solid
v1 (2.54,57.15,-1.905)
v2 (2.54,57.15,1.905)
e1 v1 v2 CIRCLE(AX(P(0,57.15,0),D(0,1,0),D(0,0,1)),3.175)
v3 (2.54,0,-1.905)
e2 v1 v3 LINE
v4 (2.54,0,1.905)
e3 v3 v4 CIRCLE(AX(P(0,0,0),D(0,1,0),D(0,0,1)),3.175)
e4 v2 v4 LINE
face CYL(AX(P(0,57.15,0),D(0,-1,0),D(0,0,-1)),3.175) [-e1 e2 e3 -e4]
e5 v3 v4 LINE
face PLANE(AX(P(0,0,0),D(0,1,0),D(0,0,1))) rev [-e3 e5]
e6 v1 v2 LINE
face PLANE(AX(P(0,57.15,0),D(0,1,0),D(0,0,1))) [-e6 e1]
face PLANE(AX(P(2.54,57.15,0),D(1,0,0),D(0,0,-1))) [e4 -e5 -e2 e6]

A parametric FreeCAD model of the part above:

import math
import FreeCAD as App
import Part
import Sketcher
from FreeCAD import Vector
Q = App.Units.Quantity

doc = App.newDocument("Part")
params = doc.addObject("Spreadsheet::Sheet", "Params")
for row, (alias, value) in enumerate([
    ("sketch1_radius", "0.125 in"),
    ("sketch1_height", "0.15 in"),
    ("pad1_length", "2.25 in"),
], start=1):
    params.set(f"A{row}", alias)
    params.set(f"B{row}", "=" + value)
    params.setAlias(f"B{row}", alias)

body = doc.addObject("PartDesign::Body", "Body")

# Sketch on XZ plane
sketch1 = body.newObject("Sketcher::SketchObject", "Sketch")
sketch1.AttachmentSupport = (doc.getObject("XZ_Plane"), [""])
sketch1.MapMode = "FlatFace"
sketch1.addGeometry(Part.LineSegment(Vector(2.5, 1.9, 0), Vector(2.5, -1.9, 0)), False)
sketch1.addGeometry(Part.ArcOfCircle(Part.Circle(Vector(0, 0, 0), Vector(0, 0, 1), 3.2), math.radians(37), math.radians(323)), False)
sketch1.addConstraint(Sketcher.Constraint("Coincident", 0, 1, 1, 1))
sketch1.addConstraint(Sketcher.Constraint("Coincident", 1, 2, 0, 2))
sketch1.addConstraint(Sketcher.Constraint("Vertical", 0))
sketch1.addConstraint(Sketcher.Constraint("Coincident", 1, 3, -1, 1))
sketch1.addConstraint(Sketcher.Constraint("Radius", 1, Q("0.125 in")))
sketch1.addConstraint(Sketcher.Constraint("DistanceY", 0, 2, 0, 1, Q("0.15 in")))
sketch1.setExpression("Constraints[4]", "Params.sketch1_radius")
sketch1.setExpression("Constraints[5]", "Params.sketch1_height")
pad1 = body.newObject("PartDesign::Pad", "Pad")
pad1.Profile = sketch1
pad1.setExpression("Length", "Params.pad1_length")
pad1.Reversed = True

doc.recompute()
